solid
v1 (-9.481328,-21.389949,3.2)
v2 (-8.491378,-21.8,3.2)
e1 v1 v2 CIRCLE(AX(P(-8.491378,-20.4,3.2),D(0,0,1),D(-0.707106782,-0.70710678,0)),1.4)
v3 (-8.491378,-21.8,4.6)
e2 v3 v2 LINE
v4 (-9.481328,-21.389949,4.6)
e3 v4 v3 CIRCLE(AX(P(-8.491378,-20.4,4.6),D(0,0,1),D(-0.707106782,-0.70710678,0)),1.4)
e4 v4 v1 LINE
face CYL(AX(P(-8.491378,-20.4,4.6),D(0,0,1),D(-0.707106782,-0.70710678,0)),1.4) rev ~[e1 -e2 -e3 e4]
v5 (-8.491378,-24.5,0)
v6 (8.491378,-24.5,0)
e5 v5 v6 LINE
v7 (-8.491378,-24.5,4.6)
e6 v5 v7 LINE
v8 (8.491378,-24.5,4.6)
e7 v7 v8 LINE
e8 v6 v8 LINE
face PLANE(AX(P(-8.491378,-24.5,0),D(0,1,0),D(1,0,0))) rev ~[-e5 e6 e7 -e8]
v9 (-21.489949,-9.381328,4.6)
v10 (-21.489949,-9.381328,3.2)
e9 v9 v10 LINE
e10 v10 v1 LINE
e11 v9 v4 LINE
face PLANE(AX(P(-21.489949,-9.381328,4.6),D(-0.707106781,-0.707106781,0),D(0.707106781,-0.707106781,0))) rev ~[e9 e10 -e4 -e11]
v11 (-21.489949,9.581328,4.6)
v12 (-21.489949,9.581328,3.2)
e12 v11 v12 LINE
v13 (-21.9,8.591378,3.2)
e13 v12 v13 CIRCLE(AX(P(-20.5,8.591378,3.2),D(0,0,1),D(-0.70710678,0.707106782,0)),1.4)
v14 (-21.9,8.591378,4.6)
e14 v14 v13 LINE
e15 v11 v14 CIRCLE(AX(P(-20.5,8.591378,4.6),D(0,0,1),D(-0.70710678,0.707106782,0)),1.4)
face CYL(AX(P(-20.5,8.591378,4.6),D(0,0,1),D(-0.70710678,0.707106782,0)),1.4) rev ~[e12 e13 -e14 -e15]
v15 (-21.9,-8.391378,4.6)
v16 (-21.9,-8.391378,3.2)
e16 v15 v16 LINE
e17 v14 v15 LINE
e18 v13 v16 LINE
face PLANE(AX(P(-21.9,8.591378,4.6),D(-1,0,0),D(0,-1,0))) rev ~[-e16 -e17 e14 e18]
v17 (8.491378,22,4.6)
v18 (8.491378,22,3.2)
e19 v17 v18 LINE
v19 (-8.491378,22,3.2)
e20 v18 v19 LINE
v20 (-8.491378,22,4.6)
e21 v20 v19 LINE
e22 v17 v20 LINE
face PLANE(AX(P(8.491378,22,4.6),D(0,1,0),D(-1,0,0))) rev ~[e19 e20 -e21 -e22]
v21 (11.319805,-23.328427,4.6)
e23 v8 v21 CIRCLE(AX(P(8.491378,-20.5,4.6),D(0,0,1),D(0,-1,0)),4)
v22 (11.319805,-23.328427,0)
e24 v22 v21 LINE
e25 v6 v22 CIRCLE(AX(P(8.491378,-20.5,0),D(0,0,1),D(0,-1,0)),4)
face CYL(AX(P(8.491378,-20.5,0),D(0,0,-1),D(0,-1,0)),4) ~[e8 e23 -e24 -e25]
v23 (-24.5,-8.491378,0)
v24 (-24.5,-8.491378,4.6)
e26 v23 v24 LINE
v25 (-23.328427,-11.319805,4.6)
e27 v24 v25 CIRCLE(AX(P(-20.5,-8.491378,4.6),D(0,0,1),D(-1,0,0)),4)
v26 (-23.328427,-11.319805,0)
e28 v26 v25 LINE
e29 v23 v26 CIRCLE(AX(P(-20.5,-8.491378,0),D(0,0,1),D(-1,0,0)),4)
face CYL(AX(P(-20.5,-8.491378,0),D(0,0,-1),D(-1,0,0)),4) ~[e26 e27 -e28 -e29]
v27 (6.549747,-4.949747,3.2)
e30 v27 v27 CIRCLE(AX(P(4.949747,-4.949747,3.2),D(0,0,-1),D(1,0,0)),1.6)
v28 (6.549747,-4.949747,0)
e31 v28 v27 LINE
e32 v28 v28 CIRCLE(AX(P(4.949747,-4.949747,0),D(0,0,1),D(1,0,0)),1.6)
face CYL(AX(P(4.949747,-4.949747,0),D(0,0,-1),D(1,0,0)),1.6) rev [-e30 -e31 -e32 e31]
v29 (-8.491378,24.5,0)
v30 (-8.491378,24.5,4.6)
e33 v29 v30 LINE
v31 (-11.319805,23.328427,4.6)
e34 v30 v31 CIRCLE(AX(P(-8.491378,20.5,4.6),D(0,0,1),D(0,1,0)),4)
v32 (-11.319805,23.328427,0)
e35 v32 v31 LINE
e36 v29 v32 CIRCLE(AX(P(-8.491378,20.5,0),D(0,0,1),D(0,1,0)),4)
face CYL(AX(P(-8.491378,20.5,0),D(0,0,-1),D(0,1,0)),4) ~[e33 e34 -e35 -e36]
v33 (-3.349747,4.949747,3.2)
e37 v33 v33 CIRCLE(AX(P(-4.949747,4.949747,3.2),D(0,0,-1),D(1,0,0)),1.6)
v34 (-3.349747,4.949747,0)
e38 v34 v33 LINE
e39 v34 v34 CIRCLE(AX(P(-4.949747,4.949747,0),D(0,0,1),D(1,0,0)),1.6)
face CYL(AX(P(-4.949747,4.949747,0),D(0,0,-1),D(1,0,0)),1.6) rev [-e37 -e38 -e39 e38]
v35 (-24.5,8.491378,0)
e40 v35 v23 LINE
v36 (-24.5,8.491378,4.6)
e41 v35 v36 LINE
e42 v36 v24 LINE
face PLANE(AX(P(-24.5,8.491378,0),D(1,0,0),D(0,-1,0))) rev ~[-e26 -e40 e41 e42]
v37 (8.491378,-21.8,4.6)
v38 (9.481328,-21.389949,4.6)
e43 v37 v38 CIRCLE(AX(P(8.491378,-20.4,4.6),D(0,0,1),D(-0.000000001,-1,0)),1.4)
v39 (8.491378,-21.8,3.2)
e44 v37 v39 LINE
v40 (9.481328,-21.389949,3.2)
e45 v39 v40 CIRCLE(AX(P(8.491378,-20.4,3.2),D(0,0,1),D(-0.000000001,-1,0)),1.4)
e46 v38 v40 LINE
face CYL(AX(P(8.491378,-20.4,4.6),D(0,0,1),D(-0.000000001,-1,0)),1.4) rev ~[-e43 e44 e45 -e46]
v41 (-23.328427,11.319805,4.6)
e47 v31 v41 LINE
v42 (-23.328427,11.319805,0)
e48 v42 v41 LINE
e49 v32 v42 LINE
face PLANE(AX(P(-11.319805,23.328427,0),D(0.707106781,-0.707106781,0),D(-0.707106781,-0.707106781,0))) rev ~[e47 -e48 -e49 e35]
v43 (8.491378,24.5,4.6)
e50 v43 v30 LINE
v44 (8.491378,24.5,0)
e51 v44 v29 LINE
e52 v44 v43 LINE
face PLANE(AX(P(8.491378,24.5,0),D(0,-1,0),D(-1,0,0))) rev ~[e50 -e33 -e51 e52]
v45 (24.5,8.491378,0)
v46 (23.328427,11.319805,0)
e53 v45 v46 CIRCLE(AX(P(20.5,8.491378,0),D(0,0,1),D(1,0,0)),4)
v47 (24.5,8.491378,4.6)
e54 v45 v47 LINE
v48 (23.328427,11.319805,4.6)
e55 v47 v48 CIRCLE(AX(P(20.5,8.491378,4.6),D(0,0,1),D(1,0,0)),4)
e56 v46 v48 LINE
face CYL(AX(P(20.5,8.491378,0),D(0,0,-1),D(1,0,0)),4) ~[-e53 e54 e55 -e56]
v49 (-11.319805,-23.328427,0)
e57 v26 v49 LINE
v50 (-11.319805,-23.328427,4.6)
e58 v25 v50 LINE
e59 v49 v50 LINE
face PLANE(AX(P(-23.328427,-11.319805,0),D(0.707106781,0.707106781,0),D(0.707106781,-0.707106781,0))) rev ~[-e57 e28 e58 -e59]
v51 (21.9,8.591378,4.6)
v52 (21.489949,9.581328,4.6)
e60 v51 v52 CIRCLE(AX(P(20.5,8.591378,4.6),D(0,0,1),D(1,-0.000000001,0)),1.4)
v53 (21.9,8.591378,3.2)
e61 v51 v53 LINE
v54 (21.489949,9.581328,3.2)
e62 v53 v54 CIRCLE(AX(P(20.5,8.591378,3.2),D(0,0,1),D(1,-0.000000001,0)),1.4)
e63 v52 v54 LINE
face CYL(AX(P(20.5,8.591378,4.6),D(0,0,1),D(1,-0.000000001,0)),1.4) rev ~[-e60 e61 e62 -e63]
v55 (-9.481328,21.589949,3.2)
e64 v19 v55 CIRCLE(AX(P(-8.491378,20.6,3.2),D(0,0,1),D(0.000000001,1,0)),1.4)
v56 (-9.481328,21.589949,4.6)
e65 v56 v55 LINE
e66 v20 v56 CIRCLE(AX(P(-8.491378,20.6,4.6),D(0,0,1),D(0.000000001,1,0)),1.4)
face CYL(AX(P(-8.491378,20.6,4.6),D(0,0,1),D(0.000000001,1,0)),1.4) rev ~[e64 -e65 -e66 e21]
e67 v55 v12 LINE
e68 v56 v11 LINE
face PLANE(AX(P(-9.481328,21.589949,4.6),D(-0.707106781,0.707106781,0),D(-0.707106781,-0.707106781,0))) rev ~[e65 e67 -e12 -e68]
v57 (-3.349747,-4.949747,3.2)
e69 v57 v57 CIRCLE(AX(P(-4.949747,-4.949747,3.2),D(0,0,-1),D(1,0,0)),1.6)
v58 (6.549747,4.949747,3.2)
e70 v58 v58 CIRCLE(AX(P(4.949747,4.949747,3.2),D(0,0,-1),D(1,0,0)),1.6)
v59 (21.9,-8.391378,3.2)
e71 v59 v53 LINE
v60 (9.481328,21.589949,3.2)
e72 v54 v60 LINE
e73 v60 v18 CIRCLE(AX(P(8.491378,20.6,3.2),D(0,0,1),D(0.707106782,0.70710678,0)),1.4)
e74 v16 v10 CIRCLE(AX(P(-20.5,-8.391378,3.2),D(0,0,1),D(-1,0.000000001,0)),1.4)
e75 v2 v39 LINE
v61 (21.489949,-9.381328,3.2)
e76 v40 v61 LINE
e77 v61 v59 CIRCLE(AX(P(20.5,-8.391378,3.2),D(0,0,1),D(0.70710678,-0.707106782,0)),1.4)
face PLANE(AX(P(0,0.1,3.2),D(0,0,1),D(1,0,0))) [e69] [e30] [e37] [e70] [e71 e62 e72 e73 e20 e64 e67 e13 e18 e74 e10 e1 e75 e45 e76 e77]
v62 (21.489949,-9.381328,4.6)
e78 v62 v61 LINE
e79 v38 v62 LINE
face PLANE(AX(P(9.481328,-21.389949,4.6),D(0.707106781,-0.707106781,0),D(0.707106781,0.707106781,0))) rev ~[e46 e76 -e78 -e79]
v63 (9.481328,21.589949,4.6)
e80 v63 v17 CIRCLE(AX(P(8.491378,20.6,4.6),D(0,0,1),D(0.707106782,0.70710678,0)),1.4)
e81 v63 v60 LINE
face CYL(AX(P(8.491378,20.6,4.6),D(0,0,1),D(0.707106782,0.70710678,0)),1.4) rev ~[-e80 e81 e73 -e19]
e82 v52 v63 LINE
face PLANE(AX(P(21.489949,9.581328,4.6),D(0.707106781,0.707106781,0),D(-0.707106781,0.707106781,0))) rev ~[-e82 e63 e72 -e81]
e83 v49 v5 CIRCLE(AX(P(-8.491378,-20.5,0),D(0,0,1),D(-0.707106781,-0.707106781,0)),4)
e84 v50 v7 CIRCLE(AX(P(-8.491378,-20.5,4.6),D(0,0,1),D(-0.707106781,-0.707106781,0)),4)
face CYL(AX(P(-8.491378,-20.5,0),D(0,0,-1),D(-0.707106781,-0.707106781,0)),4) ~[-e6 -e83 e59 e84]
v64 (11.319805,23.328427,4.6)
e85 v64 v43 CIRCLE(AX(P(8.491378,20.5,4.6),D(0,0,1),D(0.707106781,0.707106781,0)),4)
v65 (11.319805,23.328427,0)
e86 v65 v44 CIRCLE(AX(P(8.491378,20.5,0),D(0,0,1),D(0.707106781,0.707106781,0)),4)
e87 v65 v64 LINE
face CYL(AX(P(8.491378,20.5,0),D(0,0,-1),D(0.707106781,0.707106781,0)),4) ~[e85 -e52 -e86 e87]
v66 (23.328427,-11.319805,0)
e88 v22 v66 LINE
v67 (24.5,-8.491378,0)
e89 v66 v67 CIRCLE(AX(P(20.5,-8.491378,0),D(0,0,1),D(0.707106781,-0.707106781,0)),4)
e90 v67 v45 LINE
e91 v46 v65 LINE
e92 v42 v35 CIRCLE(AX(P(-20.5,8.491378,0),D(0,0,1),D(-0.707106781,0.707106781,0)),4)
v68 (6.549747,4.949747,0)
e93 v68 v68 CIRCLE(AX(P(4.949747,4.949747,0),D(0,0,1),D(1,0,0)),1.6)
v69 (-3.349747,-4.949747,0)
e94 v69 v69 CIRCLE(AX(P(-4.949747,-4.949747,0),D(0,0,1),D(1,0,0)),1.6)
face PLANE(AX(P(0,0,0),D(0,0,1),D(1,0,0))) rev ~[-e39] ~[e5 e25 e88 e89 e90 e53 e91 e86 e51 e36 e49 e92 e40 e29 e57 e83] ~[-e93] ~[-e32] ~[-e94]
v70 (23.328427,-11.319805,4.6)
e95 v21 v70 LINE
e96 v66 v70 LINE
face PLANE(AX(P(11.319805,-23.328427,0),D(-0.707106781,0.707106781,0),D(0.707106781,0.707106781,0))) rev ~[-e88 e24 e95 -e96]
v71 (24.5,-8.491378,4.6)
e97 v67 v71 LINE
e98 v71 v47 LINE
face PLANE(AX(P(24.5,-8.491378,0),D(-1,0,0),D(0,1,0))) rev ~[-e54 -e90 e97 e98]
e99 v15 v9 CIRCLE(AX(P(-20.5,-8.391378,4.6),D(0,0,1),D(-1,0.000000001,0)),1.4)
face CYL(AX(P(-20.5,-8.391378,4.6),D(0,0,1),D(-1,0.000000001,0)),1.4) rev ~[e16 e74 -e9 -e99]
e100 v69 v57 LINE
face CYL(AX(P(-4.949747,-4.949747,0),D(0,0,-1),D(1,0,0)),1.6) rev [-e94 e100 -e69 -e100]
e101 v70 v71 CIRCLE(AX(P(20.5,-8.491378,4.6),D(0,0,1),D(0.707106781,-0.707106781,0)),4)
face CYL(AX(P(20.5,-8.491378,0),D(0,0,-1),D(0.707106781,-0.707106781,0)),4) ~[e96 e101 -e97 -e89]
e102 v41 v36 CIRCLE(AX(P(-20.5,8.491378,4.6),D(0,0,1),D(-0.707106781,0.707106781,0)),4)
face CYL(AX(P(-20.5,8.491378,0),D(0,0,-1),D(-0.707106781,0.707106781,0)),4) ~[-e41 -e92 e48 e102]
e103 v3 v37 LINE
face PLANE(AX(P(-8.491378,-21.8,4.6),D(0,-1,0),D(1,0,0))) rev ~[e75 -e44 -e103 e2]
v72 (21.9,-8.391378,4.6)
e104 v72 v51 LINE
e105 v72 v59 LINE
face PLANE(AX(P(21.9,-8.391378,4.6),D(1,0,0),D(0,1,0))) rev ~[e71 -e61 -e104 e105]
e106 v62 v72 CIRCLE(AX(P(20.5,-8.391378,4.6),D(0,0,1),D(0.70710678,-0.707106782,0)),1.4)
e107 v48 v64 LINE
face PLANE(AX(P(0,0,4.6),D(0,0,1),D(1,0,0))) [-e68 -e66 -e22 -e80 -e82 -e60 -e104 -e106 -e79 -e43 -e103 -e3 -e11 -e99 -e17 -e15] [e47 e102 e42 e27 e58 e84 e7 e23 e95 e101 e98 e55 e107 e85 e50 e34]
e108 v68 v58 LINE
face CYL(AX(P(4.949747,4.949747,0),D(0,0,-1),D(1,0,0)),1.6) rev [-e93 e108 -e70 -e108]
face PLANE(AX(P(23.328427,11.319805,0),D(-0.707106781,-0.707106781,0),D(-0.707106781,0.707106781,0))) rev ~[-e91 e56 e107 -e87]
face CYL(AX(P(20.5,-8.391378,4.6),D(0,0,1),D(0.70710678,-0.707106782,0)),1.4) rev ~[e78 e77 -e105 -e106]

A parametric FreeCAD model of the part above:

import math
import FreeCAD as App
import Part
import Sketcher

V = App.Vector
Q = App.Units.Quantity

doc = App.newDocument("Part")
body = doc.addObject("PartDesign::Body", "Body")

# Sketch on XY plane
sketch1 = body.newObject("Sketcher::SketchObject", "Sketch")
sketch1.AttachmentSupport = (doc.getObject("XY_Plane"), [""])
sketch1.MapMode = "FlatFace"
sketch1.addGeometry([
    Part.LineSegment(V(-11.3, 23.3, 0), V(-23.3, 11.3, 0)),  # 0
    Part.ArcOfCircle(Part.Circle(V(-20.5, 8.5, 0), V(0, 0, 1), 4), math.radians(135), math.radians(180)),  # 1
    Part.LineSegment(V(-24.5, 8.5, 0), V(-24.5, -8.5, 0)),  # 2
    Part.ArcOfCircle(Part.Circle(V(-20.5, -8.5, 0), V(0, 0, 1), 4), math.radians(-180), math.radians(-135)),  # 3
    Part.LineSegment(V(-23.3, -11.3, 0), V(-11.3, -23.3, 0)),  # 4
    Part.ArcOfCircle(Part.Circle(V(-8.5, -20.5, 0), V(0, 0, 1), 4), math.radians(-135), math.radians(-90)),  # 5
    Part.LineSegment(V(-8.5, -24.5, 0), V(8.5, -24.5, 0)),  # 6
    Part.ArcOfCircle(Part.Circle(V(8.5, -20.5, 0), V(0, 0, 1), 4), math.radians(-90), math.radians(-45)),  # 7
    Part.LineSegment(V(11.3, -23.3, 0), V(23.3, -11.3, 0)),  # 8
    Part.ArcOfCircle(Part.Circle(V(20.5, -8.5, 0), V(0, 0, 1), 4), math.radians(-45), math.radians(0)),  # 9
    Part.LineSegment(V(24.5, -8.5, 0), V(24.5, 8.5, 0)),  # 10
    Part.ArcOfCircle(Part.Circle(V(20.5, 8.5, 0), V(0, 0, 1), 4), math.radians(0), math.radians(45)),  # 11
    Part.LineSegment(V(23.3, 11.3, 0), V(11.3, 23.3, 0)),  # 12
    Part.ArcOfCircle(Part.Circle(V(8.5, 20.5, 0), V(0, 0, 1), 4), math.radians(45), math.radians(90)),  # 13
    Part.LineSegment(V(8.5, 24.5, 0), V(-8.5, 24.5, 0)),  # 14
    Part.ArcOfCircle(Part.Circle(V(-8.5, 20.5, 0), V(0, 0, 1), 4), math.radians(90), math.radians(135)),  # 15
    Part.Circle(V(-4.9, -4.9, 0), V(0, 0, 1), 1.6),  # 16
    Part.Circle(V(4.9, -4.9, 0), V(0, 0, 1), 1.6),  # 17
    Part.Circle(V(-4.9, 4.9, 0), V(0, 0, 1), 1.6),  # 18
    Part.Circle(V(4.9, 4.9, 0), V(0, 0, 1), 1.6),  # 19
], False)
sketch1.addConstraint([
    Sketcher.Constraint("Tangent", 0, 2, 1, 1),
    Sketcher.Constraint("Tangent", 1, 2, 2, 1),
    Sketcher.Constraint("Tangent", 2, 2, 3, 1),
    Sketcher.Constraint("Tangent", 3, 2, 4, 1),
    Sketcher.Constraint("Tangent", 4, 2, 5, 1),
    Sketcher.Constraint("Tangent", 5, 2, 6, 1),
    Sketcher.Constraint("Tangent", 6, 2, 7, 1),
    Sketcher.Constraint("Tangent", 7, 2, 8, 1),
    Sketcher.Constraint("Tangent", 8, 2, 9, 1),
    Sketcher.Constraint("Tangent", 9, 2, 10, 1),
    Sketcher.Constraint("Tangent", 10, 2, 11, 1),
    Sketcher.Constraint("Tangent", 11, 2, 12, 1),
    Sketcher.Constraint("Tangent", 12, 2, 13, 1),
    Sketcher.Constraint("Tangent", 13, 2, 14, 1),
    Sketcher.Constraint("Tangent", 14, 2, 15, 1),
    Sketcher.Constraint("Tangent", 15, 2, 0, 1),
    Sketcher.Constraint("Vertical", 2),
    Sketcher.Constraint("Horizontal", 6),
    Sketcher.Constraint("Vertical", 10),
    Sketcher.Constraint("Horizontal", 14),
    Sketcher.Constraint("Equal", 1, 3),
    Sketcher.Constraint("Equal", 3, 5),
    Sketcher.Constraint("Equal", 5, 7),
    Sketcher.Constraint("Equal", 7, 9),
    Sketcher.Constraint("Equal", 9, 11),
    Sketcher.Constraint("Equal", 11, 13),
    Sketcher.Constraint("Equal", 13, 15),
    Sketcher.Constraint("Equal", 16, 17),
    Sketcher.Constraint("Equal", 17, 18),
    Sketcher.Constraint("Equal", 18, 19),
    Sketcher.Constraint("Symmetric", 1, 3, 9, 3, -1, 1),
    Sketcher.Constraint("Symmetric", 5, 3, 13, 3, -1, 1),
    Sketcher.Constraint("Symmetric", 17, 3, 18, 3, -1, 1),
    Sketcher.Constraint("Symmetric", 16, 3, 19, 3, -1, 1),
    Sketcher.Constraint("Symmetric", 16, 3, 17, 3, -2),
    Sketcher.Constraint("Symmetric", 4, 2, 7, 2, -2),
    Sketcher.Constraint("Symmetric", 0, 2, 11, 2, -2),
    Sketcher.Constraint("Perpendicular", 0, 4),
    Sketcher.Constraint("Equal", 14, 2),
    Sketcher.Constraint("Radius", 1, Q("4 mm")),
    Sketcher.Constraint("Diameter", 16, Q("3.2 mm")),
    Sketcher.Constraint("DistanceX", 3, 3, 9, 3, Q("41 mm")),
    Sketcher.Constraint("DistanceX", 6, 1, 6, 2, Q("16.982756 mm")),
    Sketcher.Constraint("DistanceY", 3, 3, 16, 3, Q("3.541631 mm")),
    Sketcher.Constraint("DistanceX", 5, 3, 16, 3, Q("3.541631 mm")),
])
pad1 = body.newObject("PartDesign::Pad", "Pad")
pad1.Profile = sketch1
pad1.Length = 4.6

# Sketch on XY plane
sketch2 = body.newObject("Sketcher::SketchObject", "Sketch001")
sketch2.AttachmentSupport = (doc.getObject("XY_Plane"), [""])
sketch2.MapMode = "FlatFace"
sketch2.AttachmentOffset = App.Placement(V(0, 0, 4.6), App.Rotation())
sketch2.addGeometry([
    Part.LineSegment(V(8.5, 22, 0), V(-8.5, 22, 0)),  # 0
    Part.ArcOfCircle(Part.Circle(V(-8.5, 20.6, 0), V(0, 0, 1), 1.4), math.radians(90), math.radians(135)),  # 1
    Part.LineSegment(V(-9.5, 21.6, 0), V(-21.5, 9.6, 0)),  # 2
    Part.ArcOfCircle(Part.Circle(V(-20.5, 8.6, 0), V(0, 0, 1), 1.4), math.radians(135), math.radians(180)),  # 3
    Part.LineSegment(V(-21.9, 8.6, 0), V(-21.9, -8.4, 0)),  # 4
    Part.ArcOfCircle(Part.Circle(V(-20.5, -8.4, 0), V(0, 0, 1), 1.4), math.radians(180), math.radians(225)),  # 5
    Part.LineSegment(V(-21.5, -9.4, 0), V(-9.5, -21.4, 0)),  # 6
    Part.ArcOfCircle(Part.Circle(V(-8.5, -20.4, 0), V(0, 0, 1), 1.4), math.radians(-135), math.radians(-90)),  # 7
    Part.LineSegment(V(-8.5, -21.8, 0), V(8.5, -21.8, 0)),  # 8
    Part.ArcOfCircle(Part.Circle(V(8.5, -20.4, 0), V(0, 0, 1), 1.4), math.radians(-90), math.radians(-45)),  # 9
    Part.LineSegment(V(9.5, -21.4, 0), V(21.5, -9.4, 0)),  # 10
    Part.ArcOfCircle(Part.Circle(V(20.5, -8.4, 0), V(0, 0, 1), 1.4), math.radians(-45), math.radians(0)),  # 11
    Part.LineSegment(V(21.9, -8.4, 0), V(21.9, 8.6, 0)),  # 12
    Part.ArcOfCircle(Part.Circle(V(20.5, 8.6, 0), V(0, 0, 1), 1.4), math.radians(0), math.radians(45)),  # 13
    Part.LineSegment(V(21.5, 9.6, 0), V(9.5, 21.6, 0)),  # 14
    Part.ArcOfCircle(Part.Circle(V(8.5, 20.6, 0), V(0, 0, 1), 1.4), math.radians(45), math.radians(90)),  # 15
], False)
sketch2.addConstraint([
    Sketcher.Constraint("Tangent", 0, 2, 1, 1),
    Sketcher.Constraint("Tangent", 1, 2, 2, 1),
    Sketcher.Constraint("Tangent", 2, 2, 3, 1),
    Sketcher.Constraint("Tangent", 3, 2, 4, 1),
    Sketcher.Constraint("Tangent", 4, 2, 5, 1),
    Sketcher.Constraint("Tangent", 5, 2, 6, 1),
    Sketcher.Constraint("Tangent", 6, 2, 7, 1),
    Sketcher.Constraint("Tangent", 7, 2, 8, 1),
    Sketcher.Constraint("Tangent", 8, 2, 9, 1),
    Sketcher.Constraint("Tangent", 9, 2, 10, 1),
    Sketcher.Constraint("Tangent", 10, 2, 11, 1),
    Sketcher.Constraint("Tangent", 11, 2, 12, 1),
    Sketcher.Constraint("Tangent", 12, 2, 13, 1),
    Sketcher.Constraint("Tangent", 13, 2, 14, 1),
    Sketcher.Constraint("Tangent", 14, 2, 15, 1),
    Sketcher.Constraint("Tangent", 15, 2, 0, 1),
    Sketcher.Constraint("Horizontal", 0),
    Sketcher.Constraint("Vertical", 4),
    Sketcher.Constraint("Horizontal", 8),
    Sketcher.Constraint("Vertical", 12),
    Sketcher.Constraint("Equal", 1, 3),
    Sketcher.Constraint("Equal", 3, 5),
    Sketcher.Constraint("Equal", 5, 7),
    Sketcher.Constraint("Equal", 7, 9),
    Sketcher.Constraint("Equal", 9, 11),
    Sketcher.Constraint("Equal", 11, 13),
    Sketcher.Constraint("Equal", 13, 15),
    Sketcher.Constraint("Symmetric", 5, 3, 11, 3, -2),
    Sketcher.Constraint("Symmetric", 2, 2, 13, 2, -2),
    Sketcher.Constraint("Perpendicular", 2, 6),
    Sketcher.Constraint("Perpendicular", 6, 10),
    Sketcher.Constraint("Perpendicular", 10, 14),
    Sketcher.Constraint("Vertical", 1, 3, 7, 3),
    Sketcher.Constraint("Equal", 8, 4),
    Sketcher.Constraint("Radius", 1, Q("1.4 mm")),
    Sketcher.Constraint("DistanceY", -1, 1, 0, 2, Q("22 mm")),
    Sketcher.Constraint("DistanceY", 7, 3, 1, 3, Q("41 mm")),
    Sketcher.Constraint("DistanceX", 0, 2, 0, 1, Q("16.982756 mm")),
])
pocket1 = body.newObject("PartDesign::Pocket", "Pocket")
pocket1.Profile = sketch2
pocket1.Length = 1.4

doc.recompute()
